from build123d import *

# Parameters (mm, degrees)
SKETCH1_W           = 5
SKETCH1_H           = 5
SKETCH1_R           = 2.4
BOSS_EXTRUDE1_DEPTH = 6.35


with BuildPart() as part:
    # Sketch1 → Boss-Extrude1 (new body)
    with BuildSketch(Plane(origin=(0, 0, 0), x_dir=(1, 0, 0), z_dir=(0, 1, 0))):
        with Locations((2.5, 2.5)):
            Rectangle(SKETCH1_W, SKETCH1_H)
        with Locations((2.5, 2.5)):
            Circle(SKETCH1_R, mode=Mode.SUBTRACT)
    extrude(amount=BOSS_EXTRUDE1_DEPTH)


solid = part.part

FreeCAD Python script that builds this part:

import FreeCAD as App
import Part
import Sketcher

doc = App.newDocument("Part")
params = doc.addObject("Spreadsheet::Sheet", "Params")
for row, (alias, value) in enumerate([
    ("sketch1_diameter", "4.8 mm"),
    ("sketch1_width", "5 mm"),
    ("pad1_length", "6.35 mm"),
], start=1):
    params.set(f"A{row}", alias)
    params.set(f"B{row}", "=" + value)
    params.setAlias(f"B{row}", alias)

body = doc.addObject("PartDesign::Body", "Body")

sketch1 = doc.addObject("Sketcher::SketchObject", "Sketch")
body.addObject(sketch1)
sketch1.AttachmentSupport = (doc.XZ_Plane, [""])
sketch1.MapMode = "FlatFace"
sketch1.addGeometry(Part.LineSegment(App.Vector(0, -5, 0), App.Vector(0, 0, 0)), False)
sketch1.addGeometry(Part.LineSegment(App.Vector(0, 0, 0), App.Vector(5, 0, 0)), False)
sketch1.addGeometry(Part.LineSegment(App.Vector(5, 0, 0), App.Vector(5, -5, 0)), False)
sketch1.addGeometry(Part.LineSegment(App.Vector(5, -5, 0), App.Vector(0, -5, 0)), False)
sketch1.addGeometry(Part.Circle(App.Vector(2.5, -2.5, 0), App.Vector(0, 0, 1), 2.4), False)
sketch1.addConstraint(Sketcher.Constraint("Coincident", 0, 2, 1, 1))
sketch1.addConstraint(Sketcher.Constraint("Coincident", 1, 2, 2, 1))
sketch1.addConstraint(Sketcher.Constraint("Coincident", 2, 2, 3, 1))
sketch1.addConstraint(Sketcher.Constraint("Coincident", 3, 2, 0, 1))
sketch1.addConstraint(Sketcher.Constraint("Vertical", 0))
sketch1.addConstraint(Sketcher.Constraint("Horizontal", 1))
sketch1.addConstraint(Sketcher.Constraint("Vertical", 2))
sketch1.addConstraint(Sketcher.Constraint("Horizontal", 3))
sketch1.addConstraint(Sketcher.Constraint("Coincident", 0, 2, -1, 1))
sketch1.addConstraint(Sketcher.Constraint("Equal", 3, 0))
sketch1.addConstraint(Sketcher.Constraint("Diameter", 4, 4.8))
sketch1.addConstraint(Sketcher.Constraint("DistanceX", 1, 1, 1, 2, 5.0))
sketch1.addConstraint(Sketcher.Constraint("DistanceX", -1, 1, 4, 3, 2.5))
sketch1.addConstraint(Sketcher.Constraint("DistanceY", 4, 3, -1, 1, 2.5))
sketch1.setExpression("Constraints[10]", "Params.sketch1_diameter")
sketch1.setExpression("Constraints[11]", "Params.sketch1_width")
pad1 = doc.addObject("PartDesign::Pad", "Pad")
body.addObject(pad1)
pad1.Profile = sketch1
pad1.setExpression("Length", "Params.pad1_length")
pad1.Reversed = True

doc.recompute()
